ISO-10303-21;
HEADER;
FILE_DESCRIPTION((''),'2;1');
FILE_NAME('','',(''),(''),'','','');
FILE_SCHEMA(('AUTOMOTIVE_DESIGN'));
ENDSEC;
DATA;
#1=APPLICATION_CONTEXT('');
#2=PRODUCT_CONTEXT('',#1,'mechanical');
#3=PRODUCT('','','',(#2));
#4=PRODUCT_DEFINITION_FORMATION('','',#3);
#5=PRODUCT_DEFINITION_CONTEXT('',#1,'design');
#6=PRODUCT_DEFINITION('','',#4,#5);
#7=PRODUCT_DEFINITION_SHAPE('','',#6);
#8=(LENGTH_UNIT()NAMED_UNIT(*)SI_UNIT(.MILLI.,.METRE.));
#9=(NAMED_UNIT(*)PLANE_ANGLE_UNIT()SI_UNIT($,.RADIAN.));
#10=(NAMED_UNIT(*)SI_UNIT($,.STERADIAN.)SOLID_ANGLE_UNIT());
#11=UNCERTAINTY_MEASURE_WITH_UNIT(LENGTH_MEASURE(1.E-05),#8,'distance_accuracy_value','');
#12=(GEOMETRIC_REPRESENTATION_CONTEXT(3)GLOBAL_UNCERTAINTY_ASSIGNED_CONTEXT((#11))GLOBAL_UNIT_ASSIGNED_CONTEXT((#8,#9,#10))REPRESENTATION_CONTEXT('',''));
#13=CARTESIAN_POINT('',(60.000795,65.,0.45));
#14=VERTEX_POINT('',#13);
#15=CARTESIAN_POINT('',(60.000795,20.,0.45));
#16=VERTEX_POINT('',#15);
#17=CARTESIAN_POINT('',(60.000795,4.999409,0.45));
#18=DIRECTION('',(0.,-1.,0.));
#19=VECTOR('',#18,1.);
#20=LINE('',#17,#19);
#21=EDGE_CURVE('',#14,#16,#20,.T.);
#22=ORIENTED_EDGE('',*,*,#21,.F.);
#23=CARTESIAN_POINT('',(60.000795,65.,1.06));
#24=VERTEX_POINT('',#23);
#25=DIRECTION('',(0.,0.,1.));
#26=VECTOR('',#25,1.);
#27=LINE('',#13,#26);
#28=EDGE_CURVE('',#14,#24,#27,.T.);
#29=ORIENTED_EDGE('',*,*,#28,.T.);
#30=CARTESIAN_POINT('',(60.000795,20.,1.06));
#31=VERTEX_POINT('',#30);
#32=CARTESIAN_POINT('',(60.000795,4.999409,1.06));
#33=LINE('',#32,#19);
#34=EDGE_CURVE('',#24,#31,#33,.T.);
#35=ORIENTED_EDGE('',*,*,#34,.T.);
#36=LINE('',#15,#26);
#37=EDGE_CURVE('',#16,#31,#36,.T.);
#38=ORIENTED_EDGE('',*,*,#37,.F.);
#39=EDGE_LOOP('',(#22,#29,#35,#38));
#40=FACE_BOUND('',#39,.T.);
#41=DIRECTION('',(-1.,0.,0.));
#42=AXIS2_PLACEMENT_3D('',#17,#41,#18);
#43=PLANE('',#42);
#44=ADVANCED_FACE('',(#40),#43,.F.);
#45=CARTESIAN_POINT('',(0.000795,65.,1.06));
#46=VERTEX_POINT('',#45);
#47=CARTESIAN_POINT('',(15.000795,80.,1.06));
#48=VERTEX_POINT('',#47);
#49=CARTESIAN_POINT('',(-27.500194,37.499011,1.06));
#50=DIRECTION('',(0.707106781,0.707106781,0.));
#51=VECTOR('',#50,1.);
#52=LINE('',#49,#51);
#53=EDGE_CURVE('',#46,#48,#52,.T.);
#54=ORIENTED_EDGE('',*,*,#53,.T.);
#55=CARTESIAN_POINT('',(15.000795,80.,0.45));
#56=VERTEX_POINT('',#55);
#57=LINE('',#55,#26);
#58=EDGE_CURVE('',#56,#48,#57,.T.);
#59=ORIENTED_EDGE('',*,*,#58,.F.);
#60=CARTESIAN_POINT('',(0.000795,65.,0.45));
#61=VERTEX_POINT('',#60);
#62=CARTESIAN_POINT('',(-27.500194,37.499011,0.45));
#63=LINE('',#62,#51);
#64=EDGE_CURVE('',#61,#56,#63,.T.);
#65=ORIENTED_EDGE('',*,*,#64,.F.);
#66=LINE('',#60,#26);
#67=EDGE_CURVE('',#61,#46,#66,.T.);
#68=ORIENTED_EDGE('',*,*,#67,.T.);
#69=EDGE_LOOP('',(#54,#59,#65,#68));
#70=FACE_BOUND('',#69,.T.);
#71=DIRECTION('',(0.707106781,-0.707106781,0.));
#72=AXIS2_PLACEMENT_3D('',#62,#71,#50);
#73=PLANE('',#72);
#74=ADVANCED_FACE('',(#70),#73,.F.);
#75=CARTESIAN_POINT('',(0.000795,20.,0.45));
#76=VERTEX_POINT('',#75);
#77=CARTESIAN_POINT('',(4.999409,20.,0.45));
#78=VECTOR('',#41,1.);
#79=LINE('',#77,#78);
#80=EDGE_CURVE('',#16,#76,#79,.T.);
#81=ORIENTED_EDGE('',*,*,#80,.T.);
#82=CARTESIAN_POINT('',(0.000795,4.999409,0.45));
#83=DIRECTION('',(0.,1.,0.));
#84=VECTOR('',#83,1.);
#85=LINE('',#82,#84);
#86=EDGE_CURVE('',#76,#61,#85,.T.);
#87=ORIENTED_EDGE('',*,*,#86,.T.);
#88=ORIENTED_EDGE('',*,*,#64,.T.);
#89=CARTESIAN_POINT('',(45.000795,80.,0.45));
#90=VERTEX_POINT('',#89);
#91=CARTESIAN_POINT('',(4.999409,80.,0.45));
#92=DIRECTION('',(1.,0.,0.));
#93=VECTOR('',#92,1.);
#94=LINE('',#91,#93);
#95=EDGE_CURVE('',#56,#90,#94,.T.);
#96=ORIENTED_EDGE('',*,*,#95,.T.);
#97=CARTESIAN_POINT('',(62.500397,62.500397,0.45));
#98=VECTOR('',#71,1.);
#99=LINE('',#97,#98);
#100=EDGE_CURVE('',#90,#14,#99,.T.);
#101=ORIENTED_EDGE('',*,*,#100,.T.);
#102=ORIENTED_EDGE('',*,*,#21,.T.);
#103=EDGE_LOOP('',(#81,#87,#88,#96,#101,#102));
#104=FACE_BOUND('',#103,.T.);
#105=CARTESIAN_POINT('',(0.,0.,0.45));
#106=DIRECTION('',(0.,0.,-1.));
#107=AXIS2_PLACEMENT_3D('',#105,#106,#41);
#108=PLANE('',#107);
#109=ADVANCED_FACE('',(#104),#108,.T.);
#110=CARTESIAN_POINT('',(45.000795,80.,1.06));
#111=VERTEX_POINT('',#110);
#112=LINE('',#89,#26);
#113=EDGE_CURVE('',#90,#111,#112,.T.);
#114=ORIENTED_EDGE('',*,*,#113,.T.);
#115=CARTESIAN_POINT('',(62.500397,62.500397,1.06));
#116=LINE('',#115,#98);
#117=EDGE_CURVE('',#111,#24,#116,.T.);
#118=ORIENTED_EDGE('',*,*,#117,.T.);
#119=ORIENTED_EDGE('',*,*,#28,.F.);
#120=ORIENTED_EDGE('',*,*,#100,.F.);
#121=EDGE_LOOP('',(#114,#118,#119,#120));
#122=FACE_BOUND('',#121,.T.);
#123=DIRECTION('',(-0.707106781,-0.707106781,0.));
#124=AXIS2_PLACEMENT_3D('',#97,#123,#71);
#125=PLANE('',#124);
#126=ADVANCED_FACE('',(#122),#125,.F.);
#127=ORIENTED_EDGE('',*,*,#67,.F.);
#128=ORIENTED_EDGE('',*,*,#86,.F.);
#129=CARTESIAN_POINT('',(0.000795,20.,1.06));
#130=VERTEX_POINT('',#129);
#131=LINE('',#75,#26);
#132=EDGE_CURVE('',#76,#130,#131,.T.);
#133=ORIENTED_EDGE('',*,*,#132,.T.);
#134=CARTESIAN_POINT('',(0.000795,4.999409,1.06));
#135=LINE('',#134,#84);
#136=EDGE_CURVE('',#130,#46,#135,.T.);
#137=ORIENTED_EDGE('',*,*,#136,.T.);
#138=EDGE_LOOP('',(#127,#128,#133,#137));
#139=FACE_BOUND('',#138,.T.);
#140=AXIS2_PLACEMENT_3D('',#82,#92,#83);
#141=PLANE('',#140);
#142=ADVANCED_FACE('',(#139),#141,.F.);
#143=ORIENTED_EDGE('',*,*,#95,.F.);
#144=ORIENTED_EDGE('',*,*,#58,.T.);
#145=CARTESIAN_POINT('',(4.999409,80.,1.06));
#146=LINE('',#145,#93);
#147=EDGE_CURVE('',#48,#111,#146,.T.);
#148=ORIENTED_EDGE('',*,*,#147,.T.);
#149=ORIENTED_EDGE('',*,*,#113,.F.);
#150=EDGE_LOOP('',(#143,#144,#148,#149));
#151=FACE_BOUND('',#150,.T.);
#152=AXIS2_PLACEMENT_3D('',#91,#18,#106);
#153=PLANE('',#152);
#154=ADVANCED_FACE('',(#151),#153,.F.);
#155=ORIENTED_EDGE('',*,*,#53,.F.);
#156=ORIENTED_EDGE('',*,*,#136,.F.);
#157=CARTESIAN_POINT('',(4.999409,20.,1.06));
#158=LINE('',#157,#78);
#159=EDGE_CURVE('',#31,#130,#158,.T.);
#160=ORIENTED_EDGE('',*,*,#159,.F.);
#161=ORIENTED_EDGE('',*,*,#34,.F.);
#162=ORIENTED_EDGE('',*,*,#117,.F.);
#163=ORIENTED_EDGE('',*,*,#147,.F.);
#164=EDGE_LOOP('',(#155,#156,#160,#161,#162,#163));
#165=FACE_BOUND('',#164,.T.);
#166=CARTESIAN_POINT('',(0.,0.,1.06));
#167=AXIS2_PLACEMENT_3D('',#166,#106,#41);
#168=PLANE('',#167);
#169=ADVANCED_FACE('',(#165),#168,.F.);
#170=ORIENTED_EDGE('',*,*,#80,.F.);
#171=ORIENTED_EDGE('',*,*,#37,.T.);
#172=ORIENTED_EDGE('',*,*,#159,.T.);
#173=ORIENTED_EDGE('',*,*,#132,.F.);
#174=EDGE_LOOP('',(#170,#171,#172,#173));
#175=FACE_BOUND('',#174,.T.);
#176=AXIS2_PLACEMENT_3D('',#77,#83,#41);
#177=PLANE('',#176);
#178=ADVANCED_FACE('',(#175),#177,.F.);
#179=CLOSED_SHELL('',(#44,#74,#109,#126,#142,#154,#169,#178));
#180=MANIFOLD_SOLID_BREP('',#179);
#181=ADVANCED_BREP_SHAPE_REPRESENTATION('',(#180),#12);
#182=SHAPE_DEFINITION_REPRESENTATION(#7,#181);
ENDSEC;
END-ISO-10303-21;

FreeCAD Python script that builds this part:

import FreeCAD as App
import Part
import Sketcher
Q = App.Units.Quantity

doc = App.newDocument("Part")
body = doc.addObject("PartDesign::Body", "Body")

# Sketch on XY plane
sketch1 = doc.addObject("Sketcher::SketchObject", "Sketch")
body.addObject(sketch1)
sketch1.AttachmentSupport = (doc.XY_Plane, [""])
sketch1.MapMode = "FlatFace"
sketch1.AttachmentOffset = App.Placement(App.Vector(0, 0, 1.06), App.Rotation())
sketch1.addGeometry([
    Part.LineSegment(App.Vector(15.000795, 80, 0), App.Vector(45.000795, 80, 0)),  # 0
    Part.LineSegment(App.Vector(45.000795, 80, 0), App.Vector(60.000795, 65, 0)),  # 1
    Part.LineSegment(App.Vector(60.000795, 65, 0), App.Vector(60.000795, 20, 0)),  # 2
    Part.LineSegment(App.Vector(60.000795, 20, 0), App.Vector(0.000795, 20, 0)),  # 3
    Part.LineSegment(App.Vector(0.000795, 20, 0), App.Vector(0.000795, 65, 0)),  # 4
    Part.LineSegment(App.Vector(0.000795, 65, 0), App.Vector(15.000795, 80, 0)),  # 5
], False)
sketch1.addConstraint([
    Sketcher.Constraint("Coincident", 0, 2, 1, 1),
    Sketcher.Constraint("Coincident", 1, 2, 2, 1),
    Sketcher.Constraint("Coincident", 2, 2, 3, 1),
    Sketcher.Constraint("Coincident", 3, 2, 4, 1),
    Sketcher.Constraint("Coincident", 4, 2, 5, 1),
    Sketcher.Constraint("Coincident", 5, 2, 0, 1),
    Sketcher.Constraint("Horizontal", 0),
    Sketcher.Constraint("Vertical", 2),
    Sketcher.Constraint("Horizontal", 3),
    Sketcher.Constraint("Vertical", 4),
    Sketcher.Constraint("Perpendicular", 1, 5),
    Sketcher.Constraint("Horizontal", 1, 2, 4, 2),
    Sketcher.Constraint("Equal", 1, 5),
    Sketcher.Constraint("DistanceX", 0, 1, 0, 2, Q("30 mm")),
    Sketcher.Constraint("DistanceX", 3, 2, 3, 1, Q("60 mm")),
    Sketcher.Constraint("DistanceY", 2, 2, 2, 1, Q("45 mm")),
    Sketcher.Constraint("DistanceY", -1, 1, 0, 2, Q("80 mm")),
    Sketcher.Constraint("DistanceX", -1, 1, 0, 2, Q("45.000795 mm")),
])
pad1 = doc.addObject("PartDesign::Pad", "Pad")
body.addObject(pad1)
pad1.Profile = sketch1
pad1.Length = 0.61
pad1.Reversed = True

doc.recompute()
